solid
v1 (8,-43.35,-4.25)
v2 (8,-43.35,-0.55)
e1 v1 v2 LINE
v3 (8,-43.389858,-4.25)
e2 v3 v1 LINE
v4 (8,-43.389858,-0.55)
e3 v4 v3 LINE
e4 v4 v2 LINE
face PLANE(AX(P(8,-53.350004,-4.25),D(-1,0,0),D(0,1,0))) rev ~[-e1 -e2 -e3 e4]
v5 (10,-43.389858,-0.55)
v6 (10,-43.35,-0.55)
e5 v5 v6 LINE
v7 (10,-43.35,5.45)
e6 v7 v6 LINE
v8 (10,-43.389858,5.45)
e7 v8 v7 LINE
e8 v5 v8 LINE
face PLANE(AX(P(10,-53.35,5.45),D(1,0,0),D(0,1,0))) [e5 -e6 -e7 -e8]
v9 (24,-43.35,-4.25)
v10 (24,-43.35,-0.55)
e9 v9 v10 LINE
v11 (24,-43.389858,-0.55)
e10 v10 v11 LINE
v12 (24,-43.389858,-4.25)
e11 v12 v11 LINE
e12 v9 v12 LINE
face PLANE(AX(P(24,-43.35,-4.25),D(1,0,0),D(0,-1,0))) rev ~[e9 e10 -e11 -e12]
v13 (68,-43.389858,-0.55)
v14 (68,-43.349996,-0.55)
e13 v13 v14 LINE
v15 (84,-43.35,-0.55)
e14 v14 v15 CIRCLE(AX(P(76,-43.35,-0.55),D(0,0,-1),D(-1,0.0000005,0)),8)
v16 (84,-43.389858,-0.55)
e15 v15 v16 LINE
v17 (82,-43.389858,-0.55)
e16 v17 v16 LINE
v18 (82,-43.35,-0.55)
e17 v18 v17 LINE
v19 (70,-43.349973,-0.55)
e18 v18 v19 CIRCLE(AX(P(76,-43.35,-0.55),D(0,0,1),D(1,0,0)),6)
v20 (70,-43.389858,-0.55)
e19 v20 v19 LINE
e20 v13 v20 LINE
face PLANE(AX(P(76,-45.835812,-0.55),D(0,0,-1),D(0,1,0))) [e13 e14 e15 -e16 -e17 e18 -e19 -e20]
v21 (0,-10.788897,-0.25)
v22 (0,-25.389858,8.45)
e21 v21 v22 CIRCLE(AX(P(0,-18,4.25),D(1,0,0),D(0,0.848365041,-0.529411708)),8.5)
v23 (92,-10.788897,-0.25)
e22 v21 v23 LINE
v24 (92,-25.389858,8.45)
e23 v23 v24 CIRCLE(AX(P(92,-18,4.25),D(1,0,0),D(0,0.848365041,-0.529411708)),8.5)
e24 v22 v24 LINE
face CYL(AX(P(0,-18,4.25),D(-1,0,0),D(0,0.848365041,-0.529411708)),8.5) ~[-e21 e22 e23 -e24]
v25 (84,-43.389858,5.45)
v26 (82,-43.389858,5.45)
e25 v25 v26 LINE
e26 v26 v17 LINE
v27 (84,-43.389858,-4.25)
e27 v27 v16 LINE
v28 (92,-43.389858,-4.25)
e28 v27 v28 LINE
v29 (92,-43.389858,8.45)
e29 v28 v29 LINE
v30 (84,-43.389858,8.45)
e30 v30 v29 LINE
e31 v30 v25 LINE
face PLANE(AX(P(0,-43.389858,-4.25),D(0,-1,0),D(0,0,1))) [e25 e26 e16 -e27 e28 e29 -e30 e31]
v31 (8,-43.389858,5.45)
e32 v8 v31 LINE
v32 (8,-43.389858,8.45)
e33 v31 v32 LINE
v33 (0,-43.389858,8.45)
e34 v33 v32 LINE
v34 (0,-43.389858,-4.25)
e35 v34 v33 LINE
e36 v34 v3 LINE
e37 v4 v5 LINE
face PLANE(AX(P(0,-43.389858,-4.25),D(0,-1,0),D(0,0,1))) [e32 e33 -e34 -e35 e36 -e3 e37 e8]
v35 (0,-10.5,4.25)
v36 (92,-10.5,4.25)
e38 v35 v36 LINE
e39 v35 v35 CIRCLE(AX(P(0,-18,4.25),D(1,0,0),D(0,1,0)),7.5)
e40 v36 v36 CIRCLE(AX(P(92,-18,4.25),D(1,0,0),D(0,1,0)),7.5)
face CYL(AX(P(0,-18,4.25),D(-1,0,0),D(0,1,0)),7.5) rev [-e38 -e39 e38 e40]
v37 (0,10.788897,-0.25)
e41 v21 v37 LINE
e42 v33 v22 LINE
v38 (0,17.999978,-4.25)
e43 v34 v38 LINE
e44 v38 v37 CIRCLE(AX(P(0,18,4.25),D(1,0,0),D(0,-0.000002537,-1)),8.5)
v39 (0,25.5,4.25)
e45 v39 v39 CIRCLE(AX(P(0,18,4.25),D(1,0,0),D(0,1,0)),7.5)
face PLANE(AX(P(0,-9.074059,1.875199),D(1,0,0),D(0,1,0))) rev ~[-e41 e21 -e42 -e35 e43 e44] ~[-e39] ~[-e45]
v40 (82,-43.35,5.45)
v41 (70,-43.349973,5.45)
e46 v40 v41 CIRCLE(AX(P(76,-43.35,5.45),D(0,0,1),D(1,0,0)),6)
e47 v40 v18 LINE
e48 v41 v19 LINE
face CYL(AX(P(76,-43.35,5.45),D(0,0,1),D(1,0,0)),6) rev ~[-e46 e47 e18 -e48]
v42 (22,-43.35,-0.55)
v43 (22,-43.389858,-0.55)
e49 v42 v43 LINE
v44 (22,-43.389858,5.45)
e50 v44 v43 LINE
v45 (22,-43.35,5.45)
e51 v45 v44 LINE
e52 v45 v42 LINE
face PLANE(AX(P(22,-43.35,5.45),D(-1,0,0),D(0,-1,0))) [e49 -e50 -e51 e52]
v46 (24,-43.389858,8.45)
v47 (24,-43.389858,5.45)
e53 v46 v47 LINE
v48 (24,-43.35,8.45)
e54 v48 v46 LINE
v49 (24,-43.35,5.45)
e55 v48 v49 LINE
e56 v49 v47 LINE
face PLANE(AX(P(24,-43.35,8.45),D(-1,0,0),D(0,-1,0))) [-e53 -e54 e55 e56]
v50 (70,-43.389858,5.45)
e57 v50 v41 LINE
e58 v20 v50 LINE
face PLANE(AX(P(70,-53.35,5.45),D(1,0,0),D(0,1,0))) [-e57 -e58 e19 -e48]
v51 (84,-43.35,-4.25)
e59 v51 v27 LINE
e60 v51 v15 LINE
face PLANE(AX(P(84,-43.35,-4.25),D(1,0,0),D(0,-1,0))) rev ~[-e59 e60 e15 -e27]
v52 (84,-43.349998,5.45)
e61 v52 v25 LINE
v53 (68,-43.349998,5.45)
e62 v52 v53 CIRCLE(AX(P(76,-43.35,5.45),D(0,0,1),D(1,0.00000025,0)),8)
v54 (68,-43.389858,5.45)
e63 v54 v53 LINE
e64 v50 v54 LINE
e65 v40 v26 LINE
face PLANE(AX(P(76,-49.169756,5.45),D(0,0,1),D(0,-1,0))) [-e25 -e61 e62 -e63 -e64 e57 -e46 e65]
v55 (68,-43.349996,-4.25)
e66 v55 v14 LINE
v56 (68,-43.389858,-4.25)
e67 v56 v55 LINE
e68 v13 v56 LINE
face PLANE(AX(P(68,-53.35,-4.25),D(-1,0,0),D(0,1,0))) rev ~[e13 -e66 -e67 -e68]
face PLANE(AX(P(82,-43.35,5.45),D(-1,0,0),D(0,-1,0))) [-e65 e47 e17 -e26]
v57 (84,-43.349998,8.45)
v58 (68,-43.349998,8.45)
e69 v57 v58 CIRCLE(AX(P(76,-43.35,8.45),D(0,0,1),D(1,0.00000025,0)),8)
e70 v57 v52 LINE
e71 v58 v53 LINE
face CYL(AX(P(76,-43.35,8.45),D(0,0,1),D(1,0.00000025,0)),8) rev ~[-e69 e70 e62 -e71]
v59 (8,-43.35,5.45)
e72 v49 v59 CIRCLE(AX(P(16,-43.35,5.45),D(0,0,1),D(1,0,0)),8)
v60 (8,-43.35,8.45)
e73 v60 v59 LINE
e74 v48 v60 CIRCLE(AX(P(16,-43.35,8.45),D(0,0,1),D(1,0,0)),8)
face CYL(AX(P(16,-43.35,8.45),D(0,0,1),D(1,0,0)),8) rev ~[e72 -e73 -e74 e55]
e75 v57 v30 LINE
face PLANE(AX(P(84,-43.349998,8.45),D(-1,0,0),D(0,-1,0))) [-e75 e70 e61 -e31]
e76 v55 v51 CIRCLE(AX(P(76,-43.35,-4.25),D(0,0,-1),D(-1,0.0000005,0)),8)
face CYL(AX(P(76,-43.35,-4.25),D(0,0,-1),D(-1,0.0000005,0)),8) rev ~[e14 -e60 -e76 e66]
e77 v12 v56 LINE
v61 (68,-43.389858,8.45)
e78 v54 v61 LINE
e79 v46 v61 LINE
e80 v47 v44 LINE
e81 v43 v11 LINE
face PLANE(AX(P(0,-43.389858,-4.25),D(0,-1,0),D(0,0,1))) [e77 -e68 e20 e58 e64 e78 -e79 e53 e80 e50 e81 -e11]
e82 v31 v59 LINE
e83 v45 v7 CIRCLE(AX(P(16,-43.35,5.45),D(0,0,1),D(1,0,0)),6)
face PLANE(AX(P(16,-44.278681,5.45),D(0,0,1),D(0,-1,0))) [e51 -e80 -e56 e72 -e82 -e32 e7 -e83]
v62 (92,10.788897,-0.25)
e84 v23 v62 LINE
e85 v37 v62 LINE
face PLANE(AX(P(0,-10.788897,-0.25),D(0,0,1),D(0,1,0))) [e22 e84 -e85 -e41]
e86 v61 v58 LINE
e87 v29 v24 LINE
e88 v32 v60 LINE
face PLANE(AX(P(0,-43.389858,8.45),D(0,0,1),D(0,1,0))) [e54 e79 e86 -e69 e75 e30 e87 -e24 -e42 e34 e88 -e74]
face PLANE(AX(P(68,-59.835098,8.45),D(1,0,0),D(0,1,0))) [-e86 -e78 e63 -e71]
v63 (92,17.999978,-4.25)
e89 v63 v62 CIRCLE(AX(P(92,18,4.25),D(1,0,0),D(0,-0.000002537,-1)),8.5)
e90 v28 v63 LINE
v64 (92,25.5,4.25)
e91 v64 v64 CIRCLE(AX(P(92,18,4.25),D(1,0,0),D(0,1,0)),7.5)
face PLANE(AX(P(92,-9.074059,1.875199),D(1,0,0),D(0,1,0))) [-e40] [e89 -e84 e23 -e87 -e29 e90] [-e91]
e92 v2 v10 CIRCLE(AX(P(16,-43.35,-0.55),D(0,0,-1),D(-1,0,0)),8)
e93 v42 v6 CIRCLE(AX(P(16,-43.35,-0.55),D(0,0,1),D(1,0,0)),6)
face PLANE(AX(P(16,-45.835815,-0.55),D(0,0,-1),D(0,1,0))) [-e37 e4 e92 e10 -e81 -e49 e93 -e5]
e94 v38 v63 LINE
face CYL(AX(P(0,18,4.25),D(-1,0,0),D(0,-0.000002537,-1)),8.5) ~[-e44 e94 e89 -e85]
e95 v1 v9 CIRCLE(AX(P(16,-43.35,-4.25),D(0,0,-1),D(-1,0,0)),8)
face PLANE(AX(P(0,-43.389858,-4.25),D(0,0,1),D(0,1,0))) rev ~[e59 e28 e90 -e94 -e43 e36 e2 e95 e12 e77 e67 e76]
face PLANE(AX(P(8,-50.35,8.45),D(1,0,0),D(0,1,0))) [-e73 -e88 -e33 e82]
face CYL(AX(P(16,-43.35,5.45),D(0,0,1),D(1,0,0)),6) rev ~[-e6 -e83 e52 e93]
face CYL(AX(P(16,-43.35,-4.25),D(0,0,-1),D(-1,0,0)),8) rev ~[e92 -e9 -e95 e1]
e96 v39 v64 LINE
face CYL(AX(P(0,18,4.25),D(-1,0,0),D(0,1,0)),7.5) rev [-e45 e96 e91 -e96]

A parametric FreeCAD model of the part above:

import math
import FreeCAD as App
import Part
import Sketcher

V = App.Vector
Q = App.Units.Quantity

doc = App.newDocument("Part")
body = doc.addObject("PartDesign::Body", "Body")

# Sketch on YZ plane
sketch1 = body.newObject("Sketcher::SketchObject", "Sketch")
sketch1.AttachmentSupport = (doc.getObject("YZ_Plane"), [""])
sketch1.MapMode = "FlatFace"
sketch1.addGeometry(Part.ArcOfCircle(Part.Circle(V(18, 4, 0), V(0, 0, 1), 9), math.radians(-90), math.radians(212)), False)
sketch1.addGeometry(Part.LineSegment(V(11, 0, 0), V(-11, 0, 0)), False)
sketch1.addGeometry(Part.ArcOfCircle(Part.Circle(V(-18, 4, 0), V(0, 0, 1), 9), math.radians(-32), math.radians(150)), False)
sketch1.addGeometry(Part.LineSegment(V(-25, 8, 0), V(-43, 8, 0)), False)
sketch1.addGeometry(Part.LineSegment(V(-43, 8, 0), V(-43, -4, 0)), False)
sketch1.addGeometry(Part.LineSegment(V(-43, -4, 0), V(18, -4, 0)), False)
sketch1.addGeometry(Part.Circle(V(-18, 4, 0), V(0, 0, 1), 8), False)
sketch1.addGeometry(Part.Circle(V(18, 4, 0), V(0, 0, 1), 8), False)
sketch1.addConstraint(Sketcher.Constraint("Coincident", 0, 2, 1, 1))
sketch1.addConstraint(Sketcher.Constraint("Coincident", 1, 2, 2, 1))
sketch1.addConstraint(Sketcher.Constraint("Coincident", 2, 2, 3, 1))
sketch1.addConstraint(Sketcher.Constraint("Coincident", 3, 2, 4, 1))
sketch1.addConstraint(Sketcher.Constraint("Coincident", 4, 2, 5, 1))
sketch1.addConstraint(Sketcher.Constraint("Coincident", 5, 2, 0, 1))
sketch1.addConstraint(Sketcher.Constraint("Horizontal", 1))
sketch1.addConstraint(Sketcher.Constraint("Horizontal", 3))
sketch1.addConstraint(Sketcher.Constraint("Vertical", 4))
sketch1.addConstraint(Sketcher.Constraint("Horizontal", 5))
sketch1.addConstraint(Sketcher.Constraint("Coincident", 6, 3, 2, 3))
sketch1.addConstraint(Sketcher.Constraint("Coincident", 7, 3, 0, 3))
sketch1.addConstraint(Sketcher.Constraint("Equal", 0, 2))
sketch1.addConstraint(Sketcher.Constraint("Equal", 6, 7))
sketch1.addConstraint(Sketcher.Constraint("Symmetric", 0, 3, 2, 3, -2))
sketch1.addConstraint(Sketcher.Constraint("Diameter", 6, Q("15 mm")))
sketch1.addConstraint(Sketcher.Constraint("Radius", 0, Q("8.5 mm")))
sketch1.addConstraint(Sketcher.Constraint("DistanceX", 3, 2, 3, 1, Q("18 mm")))
sketch1.addConstraint(Sketcher.Constraint("DistanceY", 4, 2, 4, 1, Q("12.7 mm")))
sketch1.addConstraint(Sketcher.Constraint("DistanceX", -1, 1, 0, 3, Q("18 mm")))
sketch1.addConstraint(Sketcher.Constraint("DistanceY", 4, 2, 1, 2, Q("4 mm")))
sketch1.addConstraint(Sketcher.Constraint("DistanceY", -1, 1, 0, 3, Q("4.25 mm")))
sketch1.addConstraint(Sketcher.Constraint("DistanceX", 5, 1, 5, 2, Q("61.389836 mm")))
pad1 = body.newObject("PartDesign::Pad", "Pad")
pad1.Profile = sketch1
pad1.Length = 92

# Sketch on XY plane
sketch2 = body.newObject("Sketcher::SketchObject", "Sketch001")
sketch2.AttachmentSupport = (doc.getObject("XY_Plane"), [""])
sketch2.MapMode = "FlatFace"
sketch2.AttachmentOffset = App.Placement(V(0, 0, 8.45), App.Rotation())
sketch2.addGeometry(Part.ArcOfCircle(Part.Circle(V(16, -43, 0), V(0, 0, 1), 8), math.radians(0), math.radians(180)), False)
sketch2.addGeometry(Part.LineSegment(V(8, -43, 0), V(8, -50, 0)), False)
sketch2.addGeometry(Part.LineSegment(V(8, -50, 0), V(24, -50, 0)), False)
sketch2.addGeometry(Part.LineSegment(V(24, -50, 0), V(24, -43, 0)), False)
sketch2.addGeometry(Part.ArcOfCircle(Part.Circle(V(76, -43, 0), V(0, 0, 1), 8), math.radians(0), math.radians(180)), False)
sketch2.addGeometry(Part.LineSegment(V(68, -43, 0), V(68, -60, 0)), False)
sketch2.addGeometry(Part.LineSegment(V(68, -60, 0), V(84, -60, 0)), False)
sketch2.addGeometry(Part.LineSegment(V(84, -60, 0), V(84, -43, 0)), False)
sketch2.addConstraint(Sketcher.Constraint("Tangent", 0, 2, 1, 1))
sketch2.addConstraint(Sketcher.Constraint("Coincident", 1, 2, 2, 1))
sketch2.addConstraint(Sketcher.Constraint("Coincident", 2, 2, 3, 1))
sketch2.addConstraint(Sketcher.Constraint("Tangent", 3, 2, 0, 1))
sketch2.addConstraint(Sketcher.Constraint("Tangent", 4, 2, 5, 1))
sketch2.addConstraint(Sketcher.Constraint("Coincident", 5, 2, 6, 1))
sketch2.addConstraint(Sketcher.Constraint("Coincident", 6, 2, 7, 1))
sketch2.addConstraint(Sketcher.Constraint("Tangent", 7, 2, 4, 1))
sketch2.addConstraint(Sketcher.Constraint("Vertical", 1))
sketch2.addConstraint(Sketcher.Constraint("Horizontal", 2))
sketch2.addConstraint(Sketcher.Constraint("Vertical", 3))
sketch2.addConstraint(Sketcher.Constraint("Vertical", 5))
sketch2.addConstraint(Sketcher.Constraint("Horizontal", 6))
sketch2.addConstraint(Sketcher.Constraint("Vertical", 7))
sketch2.addConstraint(Sketcher.Constraint("Equal", 0, 4))
sketch2.addConstraint(Sketcher.Constraint("Horizontal", 0, 3, 4, 3))
sketch2.addConstraint(Sketcher.Constraint("Radius", 0, Q("8 mm")))
sketch2.addConstraint(Sketcher.Constraint("DistanceY", 1, 2, 1, 1, Q("7 mm")))
sketch2.addConstraint(Sketcher.Constraint("DistanceX", -1, 1, 0, 3, Q("16 mm")))
sketch2.addConstraint(Sketcher.Constraint("DistanceX", -1, 1, 4, 3, Q("76 mm")))
sketch2.addConstraint(Sketcher.Constraint("DistanceY", 0, 3, -1, 1, Q("43.35 mm")))
sketch2.addConstraint(Sketcher.Constraint("DistanceY", 5, 2, 5, 1, Q("16.4851 mm")))
pocket1 = body.newObject("PartDesign::Pocket", "Pocket")
pocket1.Profile = sketch2
pocket1.Length = 3

# Sketch on XY plane
sketch3 = body.newObject("Sketcher::SketchObject", "Sketch002")
sketch3.AttachmentSupport = (doc.getObject("XY_Plane"), [""])
sketch3.MapMode = "FlatFace"
sketch3.AttachmentOffset = App.Placement(V(0, 0, 5.45), App.Rotation())
sketch3.addGeometry(Part.ArcOfCircle(Part.Circle(V(16, -43, 0), V(0, 0, 1), 6), math.radians(0), math.radians(180)), False)
sketch3.addGeometry(Part.LineSegment(V(10, -43, 0), V(10, -53, 0)), False)
sketch3.addGeometry(Part.LineSegment(V(10, -53, 0), V(22, -53, 0)), False)
sketch3.addGeometry(Part.LineSegment(V(22, -53, 0), V(22, -43, 0)), False)
sketch3.addGeometry(Part.ArcOfCircle(Part.Circle(V(76, -43, 0), V(0, 0, 1), 6), math.radians(0), math.radians(180)), False)
sketch3.addGeometry(Part.LineSegment(V(70, -43, 0), V(70, -53, 0)), False)
sketch3.addGeometry(Part.LineSegment(V(70, -53, 0), V(82, -53, 0)), False)
sketch3.addGeometry(Part.LineSegment(V(82, -53, 0), V(82, -43, 0)), False)
sketch3.addConstraint(Sketcher.Constraint("Tangent", 0, 2, 1, 1))
sketch3.addConstraint(Sketcher.Constraint("Coincident", 1, 2, 2, 1))
sketch3.addConstraint(Sketcher.Constraint("Coincident", 2, 2, 3, 1))
sketch3.addConstraint(Sketcher.Constraint("Tangent", 3, 2, 0, 1))
sketch3.addConstraint(Sketcher.Constraint("Coincident", 4, 2, 5, 1))
sketch3.addConstraint(Sketcher.Constraint("Coincident", 5, 2, 6, 1))
sketch3.addConstraint(Sketcher.Constraint("Coincident", 6, 2, 7, 1))
sketch3.addConstraint(Sketcher.Constraint("Tangent", 7, 2, 4, 1))
sketch3.addConstraint(Sketcher.Constraint("Vertical", 1))
sketch3.addConstraint(Sketcher.Constraint("Horizontal", 2))
sketch3.addConstraint(Sketcher.Constraint("Vertical", 3))
sketch3.addConstraint(Sketcher.Constraint("Vertical", 5))
sketch3.addConstraint(Sketcher.Constraint("Horizontal", 6))
sketch3.addConstraint(Sketcher.Constraint("Vertical", 7))
sketch3.addConstraint(Sketcher.Constraint("Equal", 0, 4))
sketch3.addConstraint(Sketcher.Constraint("Horizontal", 0, 3, 4, 3))
sketch3.addConstraint(Sketcher.Constraint("Horizontal", 2, 2, 5, 2))
sketch3.addConstraint(Sketcher.Constraint("Radius", 0, Q("6 mm")))
sketch3.addConstraint(Sketcher.Constraint("DistanceY", 1, 2, 1, 1, Q("10 mm")))
sketch3.addConstraint(Sketcher.Constraint("DistanceX", -1, 1, 0, 3, Q("16 mm")))
sketch3.addConstraint(Sketcher.Constraint("DistanceX", -1, 1, 4, 3, Q("76 mm")))
sketch3.addConstraint(Sketcher.Constraint("DistanceY", 0, 3, -1, 1, Q("43.35 mm")))
sketch3.addConstraint(Sketcher.Constraint("DistanceY", 5, 2, 5, 1, Q("10.000027 mm")))
pocket2 = body.newObject("PartDesign::Pocket", "Pocket001")
pocket2.Profile = sketch3
pocket2.Type = "ThroughAll"

# Sketch on XY plane
sketch4 = body.newObject("Sketcher::SketchObject", "Sketch003")
sketch4.AttachmentSupport = (doc.getObject("XY_Plane"), [""])
sketch4.MapMode = "FlatFace"
sketch4.AttachmentOffset = App.Placement(V(0, 0, -4.25), App.Rotation())
sketch4.addGeometry(Part.ArcOfCircle(Part.Circle(V(76, -43, 0), V(0, 0, 1), 8), math.radians(0), math.radians(180)), False)
sketch4.addGeometry(Part.LineSegment(V(84, -43, 0), V(84, -53, 0)), False)
sketch4.addGeometry(Part.LineSegment(V(84, -53, 0), V(68, -53, 0)), False)
sketch4.addGeometry(Part.LineSegment(V(68, -53, 0), V(68, -43, 0)), False)
sketch4.addGeometry(Part.ArcOfCircle(Part.Circle(V(16, -43, 0), V(0, 0, 1), 8), math.radians(0), math.radians(180)), False)
sketch4.addGeometry(Part.LineSegment(V(24, -43, 0), V(24, -53, 0)), False)
sketch4.addGeometry(Part.LineSegment(V(24, -53, 0), V(8, -53, 0)), False)
sketch4.addGeometry(Part.LineSegment(V(8, -53, 0), V(8, -43, 0)), False)
sketch4.addConstraint(Sketcher.Constraint("Tangent", 0, 1, 1, 1))
sketch4.addConstraint(Sketcher.Constraint("Coincident", 1, 2, 2, 1))
sketch4.addConstraint(Sketcher.Constraint("Coincident", 2, 2, 3, 1))
sketch4.addConstraint(Sketcher.Constraint("Tangent", 3, 2, 0, 2))
sketch4.addConstraint(Sketcher.Constraint("Tangent", 4, 1, 5, 1))
sketch4.addConstraint(Sketcher.Constraint("Coincident", 5, 2, 6, 1))
sketch4.addConstraint(Sketcher.Constraint("Coincident", 6, 2, 7, 1))
sketch4.addConstraint(Sketcher.Constraint("Tangent", 7, 2, 4, 2))
sketch4.addConstraint(Sketcher.Constraint("Vertical", 1))
sketch4.addConstraint(Sketcher.Constraint("Horizontal", 2))
sketch4.addConstraint(Sketcher.Constraint("Vertical", 3))
sketch4.addConstraint(Sketcher.Constraint("Vertical", 5))
sketch4.addConstraint(Sketcher.Constraint("Horizontal", 6))
sketch4.addConstraint(Sketcher.Constraint("Vertical", 7))
sketch4.addConstraint(Sketcher.Constraint("Equal", 0, 4))
sketch4.addConstraint(Sketcher.Constraint("Horizontal", 0, 3, 4, 3))
sketch4.addConstraint(Sketcher.Constraint("Equal", 3, 5))
sketch4.addConstraint(Sketcher.Constraint("Radius", 0, Q("8 mm")))
sketch4.addConstraint(Sketcher.Constraint("DistanceY", 1, 2, 1, 1, Q("10 mm")))
sketch4.addConstraint(Sketcher.Constraint("DistanceX", -1, 1, 0, 3, Q("76 mm")))
sketch4.addConstraint(Sketcher.Constraint("DistanceX", -1, 1, 4, 3, Q("16 mm")))
sketch4.addConstraint(Sketcher.Constraint("DistanceY", 0, 3, -1, 1, Q("43.35 mm")))
pocket3 = body.newObject("PartDesign::Pocket", "Pocket002")
pocket3.Profile = sketch4
pocket3.Length = 3.7
pocket3.Reversed = True

doc.recompute()
